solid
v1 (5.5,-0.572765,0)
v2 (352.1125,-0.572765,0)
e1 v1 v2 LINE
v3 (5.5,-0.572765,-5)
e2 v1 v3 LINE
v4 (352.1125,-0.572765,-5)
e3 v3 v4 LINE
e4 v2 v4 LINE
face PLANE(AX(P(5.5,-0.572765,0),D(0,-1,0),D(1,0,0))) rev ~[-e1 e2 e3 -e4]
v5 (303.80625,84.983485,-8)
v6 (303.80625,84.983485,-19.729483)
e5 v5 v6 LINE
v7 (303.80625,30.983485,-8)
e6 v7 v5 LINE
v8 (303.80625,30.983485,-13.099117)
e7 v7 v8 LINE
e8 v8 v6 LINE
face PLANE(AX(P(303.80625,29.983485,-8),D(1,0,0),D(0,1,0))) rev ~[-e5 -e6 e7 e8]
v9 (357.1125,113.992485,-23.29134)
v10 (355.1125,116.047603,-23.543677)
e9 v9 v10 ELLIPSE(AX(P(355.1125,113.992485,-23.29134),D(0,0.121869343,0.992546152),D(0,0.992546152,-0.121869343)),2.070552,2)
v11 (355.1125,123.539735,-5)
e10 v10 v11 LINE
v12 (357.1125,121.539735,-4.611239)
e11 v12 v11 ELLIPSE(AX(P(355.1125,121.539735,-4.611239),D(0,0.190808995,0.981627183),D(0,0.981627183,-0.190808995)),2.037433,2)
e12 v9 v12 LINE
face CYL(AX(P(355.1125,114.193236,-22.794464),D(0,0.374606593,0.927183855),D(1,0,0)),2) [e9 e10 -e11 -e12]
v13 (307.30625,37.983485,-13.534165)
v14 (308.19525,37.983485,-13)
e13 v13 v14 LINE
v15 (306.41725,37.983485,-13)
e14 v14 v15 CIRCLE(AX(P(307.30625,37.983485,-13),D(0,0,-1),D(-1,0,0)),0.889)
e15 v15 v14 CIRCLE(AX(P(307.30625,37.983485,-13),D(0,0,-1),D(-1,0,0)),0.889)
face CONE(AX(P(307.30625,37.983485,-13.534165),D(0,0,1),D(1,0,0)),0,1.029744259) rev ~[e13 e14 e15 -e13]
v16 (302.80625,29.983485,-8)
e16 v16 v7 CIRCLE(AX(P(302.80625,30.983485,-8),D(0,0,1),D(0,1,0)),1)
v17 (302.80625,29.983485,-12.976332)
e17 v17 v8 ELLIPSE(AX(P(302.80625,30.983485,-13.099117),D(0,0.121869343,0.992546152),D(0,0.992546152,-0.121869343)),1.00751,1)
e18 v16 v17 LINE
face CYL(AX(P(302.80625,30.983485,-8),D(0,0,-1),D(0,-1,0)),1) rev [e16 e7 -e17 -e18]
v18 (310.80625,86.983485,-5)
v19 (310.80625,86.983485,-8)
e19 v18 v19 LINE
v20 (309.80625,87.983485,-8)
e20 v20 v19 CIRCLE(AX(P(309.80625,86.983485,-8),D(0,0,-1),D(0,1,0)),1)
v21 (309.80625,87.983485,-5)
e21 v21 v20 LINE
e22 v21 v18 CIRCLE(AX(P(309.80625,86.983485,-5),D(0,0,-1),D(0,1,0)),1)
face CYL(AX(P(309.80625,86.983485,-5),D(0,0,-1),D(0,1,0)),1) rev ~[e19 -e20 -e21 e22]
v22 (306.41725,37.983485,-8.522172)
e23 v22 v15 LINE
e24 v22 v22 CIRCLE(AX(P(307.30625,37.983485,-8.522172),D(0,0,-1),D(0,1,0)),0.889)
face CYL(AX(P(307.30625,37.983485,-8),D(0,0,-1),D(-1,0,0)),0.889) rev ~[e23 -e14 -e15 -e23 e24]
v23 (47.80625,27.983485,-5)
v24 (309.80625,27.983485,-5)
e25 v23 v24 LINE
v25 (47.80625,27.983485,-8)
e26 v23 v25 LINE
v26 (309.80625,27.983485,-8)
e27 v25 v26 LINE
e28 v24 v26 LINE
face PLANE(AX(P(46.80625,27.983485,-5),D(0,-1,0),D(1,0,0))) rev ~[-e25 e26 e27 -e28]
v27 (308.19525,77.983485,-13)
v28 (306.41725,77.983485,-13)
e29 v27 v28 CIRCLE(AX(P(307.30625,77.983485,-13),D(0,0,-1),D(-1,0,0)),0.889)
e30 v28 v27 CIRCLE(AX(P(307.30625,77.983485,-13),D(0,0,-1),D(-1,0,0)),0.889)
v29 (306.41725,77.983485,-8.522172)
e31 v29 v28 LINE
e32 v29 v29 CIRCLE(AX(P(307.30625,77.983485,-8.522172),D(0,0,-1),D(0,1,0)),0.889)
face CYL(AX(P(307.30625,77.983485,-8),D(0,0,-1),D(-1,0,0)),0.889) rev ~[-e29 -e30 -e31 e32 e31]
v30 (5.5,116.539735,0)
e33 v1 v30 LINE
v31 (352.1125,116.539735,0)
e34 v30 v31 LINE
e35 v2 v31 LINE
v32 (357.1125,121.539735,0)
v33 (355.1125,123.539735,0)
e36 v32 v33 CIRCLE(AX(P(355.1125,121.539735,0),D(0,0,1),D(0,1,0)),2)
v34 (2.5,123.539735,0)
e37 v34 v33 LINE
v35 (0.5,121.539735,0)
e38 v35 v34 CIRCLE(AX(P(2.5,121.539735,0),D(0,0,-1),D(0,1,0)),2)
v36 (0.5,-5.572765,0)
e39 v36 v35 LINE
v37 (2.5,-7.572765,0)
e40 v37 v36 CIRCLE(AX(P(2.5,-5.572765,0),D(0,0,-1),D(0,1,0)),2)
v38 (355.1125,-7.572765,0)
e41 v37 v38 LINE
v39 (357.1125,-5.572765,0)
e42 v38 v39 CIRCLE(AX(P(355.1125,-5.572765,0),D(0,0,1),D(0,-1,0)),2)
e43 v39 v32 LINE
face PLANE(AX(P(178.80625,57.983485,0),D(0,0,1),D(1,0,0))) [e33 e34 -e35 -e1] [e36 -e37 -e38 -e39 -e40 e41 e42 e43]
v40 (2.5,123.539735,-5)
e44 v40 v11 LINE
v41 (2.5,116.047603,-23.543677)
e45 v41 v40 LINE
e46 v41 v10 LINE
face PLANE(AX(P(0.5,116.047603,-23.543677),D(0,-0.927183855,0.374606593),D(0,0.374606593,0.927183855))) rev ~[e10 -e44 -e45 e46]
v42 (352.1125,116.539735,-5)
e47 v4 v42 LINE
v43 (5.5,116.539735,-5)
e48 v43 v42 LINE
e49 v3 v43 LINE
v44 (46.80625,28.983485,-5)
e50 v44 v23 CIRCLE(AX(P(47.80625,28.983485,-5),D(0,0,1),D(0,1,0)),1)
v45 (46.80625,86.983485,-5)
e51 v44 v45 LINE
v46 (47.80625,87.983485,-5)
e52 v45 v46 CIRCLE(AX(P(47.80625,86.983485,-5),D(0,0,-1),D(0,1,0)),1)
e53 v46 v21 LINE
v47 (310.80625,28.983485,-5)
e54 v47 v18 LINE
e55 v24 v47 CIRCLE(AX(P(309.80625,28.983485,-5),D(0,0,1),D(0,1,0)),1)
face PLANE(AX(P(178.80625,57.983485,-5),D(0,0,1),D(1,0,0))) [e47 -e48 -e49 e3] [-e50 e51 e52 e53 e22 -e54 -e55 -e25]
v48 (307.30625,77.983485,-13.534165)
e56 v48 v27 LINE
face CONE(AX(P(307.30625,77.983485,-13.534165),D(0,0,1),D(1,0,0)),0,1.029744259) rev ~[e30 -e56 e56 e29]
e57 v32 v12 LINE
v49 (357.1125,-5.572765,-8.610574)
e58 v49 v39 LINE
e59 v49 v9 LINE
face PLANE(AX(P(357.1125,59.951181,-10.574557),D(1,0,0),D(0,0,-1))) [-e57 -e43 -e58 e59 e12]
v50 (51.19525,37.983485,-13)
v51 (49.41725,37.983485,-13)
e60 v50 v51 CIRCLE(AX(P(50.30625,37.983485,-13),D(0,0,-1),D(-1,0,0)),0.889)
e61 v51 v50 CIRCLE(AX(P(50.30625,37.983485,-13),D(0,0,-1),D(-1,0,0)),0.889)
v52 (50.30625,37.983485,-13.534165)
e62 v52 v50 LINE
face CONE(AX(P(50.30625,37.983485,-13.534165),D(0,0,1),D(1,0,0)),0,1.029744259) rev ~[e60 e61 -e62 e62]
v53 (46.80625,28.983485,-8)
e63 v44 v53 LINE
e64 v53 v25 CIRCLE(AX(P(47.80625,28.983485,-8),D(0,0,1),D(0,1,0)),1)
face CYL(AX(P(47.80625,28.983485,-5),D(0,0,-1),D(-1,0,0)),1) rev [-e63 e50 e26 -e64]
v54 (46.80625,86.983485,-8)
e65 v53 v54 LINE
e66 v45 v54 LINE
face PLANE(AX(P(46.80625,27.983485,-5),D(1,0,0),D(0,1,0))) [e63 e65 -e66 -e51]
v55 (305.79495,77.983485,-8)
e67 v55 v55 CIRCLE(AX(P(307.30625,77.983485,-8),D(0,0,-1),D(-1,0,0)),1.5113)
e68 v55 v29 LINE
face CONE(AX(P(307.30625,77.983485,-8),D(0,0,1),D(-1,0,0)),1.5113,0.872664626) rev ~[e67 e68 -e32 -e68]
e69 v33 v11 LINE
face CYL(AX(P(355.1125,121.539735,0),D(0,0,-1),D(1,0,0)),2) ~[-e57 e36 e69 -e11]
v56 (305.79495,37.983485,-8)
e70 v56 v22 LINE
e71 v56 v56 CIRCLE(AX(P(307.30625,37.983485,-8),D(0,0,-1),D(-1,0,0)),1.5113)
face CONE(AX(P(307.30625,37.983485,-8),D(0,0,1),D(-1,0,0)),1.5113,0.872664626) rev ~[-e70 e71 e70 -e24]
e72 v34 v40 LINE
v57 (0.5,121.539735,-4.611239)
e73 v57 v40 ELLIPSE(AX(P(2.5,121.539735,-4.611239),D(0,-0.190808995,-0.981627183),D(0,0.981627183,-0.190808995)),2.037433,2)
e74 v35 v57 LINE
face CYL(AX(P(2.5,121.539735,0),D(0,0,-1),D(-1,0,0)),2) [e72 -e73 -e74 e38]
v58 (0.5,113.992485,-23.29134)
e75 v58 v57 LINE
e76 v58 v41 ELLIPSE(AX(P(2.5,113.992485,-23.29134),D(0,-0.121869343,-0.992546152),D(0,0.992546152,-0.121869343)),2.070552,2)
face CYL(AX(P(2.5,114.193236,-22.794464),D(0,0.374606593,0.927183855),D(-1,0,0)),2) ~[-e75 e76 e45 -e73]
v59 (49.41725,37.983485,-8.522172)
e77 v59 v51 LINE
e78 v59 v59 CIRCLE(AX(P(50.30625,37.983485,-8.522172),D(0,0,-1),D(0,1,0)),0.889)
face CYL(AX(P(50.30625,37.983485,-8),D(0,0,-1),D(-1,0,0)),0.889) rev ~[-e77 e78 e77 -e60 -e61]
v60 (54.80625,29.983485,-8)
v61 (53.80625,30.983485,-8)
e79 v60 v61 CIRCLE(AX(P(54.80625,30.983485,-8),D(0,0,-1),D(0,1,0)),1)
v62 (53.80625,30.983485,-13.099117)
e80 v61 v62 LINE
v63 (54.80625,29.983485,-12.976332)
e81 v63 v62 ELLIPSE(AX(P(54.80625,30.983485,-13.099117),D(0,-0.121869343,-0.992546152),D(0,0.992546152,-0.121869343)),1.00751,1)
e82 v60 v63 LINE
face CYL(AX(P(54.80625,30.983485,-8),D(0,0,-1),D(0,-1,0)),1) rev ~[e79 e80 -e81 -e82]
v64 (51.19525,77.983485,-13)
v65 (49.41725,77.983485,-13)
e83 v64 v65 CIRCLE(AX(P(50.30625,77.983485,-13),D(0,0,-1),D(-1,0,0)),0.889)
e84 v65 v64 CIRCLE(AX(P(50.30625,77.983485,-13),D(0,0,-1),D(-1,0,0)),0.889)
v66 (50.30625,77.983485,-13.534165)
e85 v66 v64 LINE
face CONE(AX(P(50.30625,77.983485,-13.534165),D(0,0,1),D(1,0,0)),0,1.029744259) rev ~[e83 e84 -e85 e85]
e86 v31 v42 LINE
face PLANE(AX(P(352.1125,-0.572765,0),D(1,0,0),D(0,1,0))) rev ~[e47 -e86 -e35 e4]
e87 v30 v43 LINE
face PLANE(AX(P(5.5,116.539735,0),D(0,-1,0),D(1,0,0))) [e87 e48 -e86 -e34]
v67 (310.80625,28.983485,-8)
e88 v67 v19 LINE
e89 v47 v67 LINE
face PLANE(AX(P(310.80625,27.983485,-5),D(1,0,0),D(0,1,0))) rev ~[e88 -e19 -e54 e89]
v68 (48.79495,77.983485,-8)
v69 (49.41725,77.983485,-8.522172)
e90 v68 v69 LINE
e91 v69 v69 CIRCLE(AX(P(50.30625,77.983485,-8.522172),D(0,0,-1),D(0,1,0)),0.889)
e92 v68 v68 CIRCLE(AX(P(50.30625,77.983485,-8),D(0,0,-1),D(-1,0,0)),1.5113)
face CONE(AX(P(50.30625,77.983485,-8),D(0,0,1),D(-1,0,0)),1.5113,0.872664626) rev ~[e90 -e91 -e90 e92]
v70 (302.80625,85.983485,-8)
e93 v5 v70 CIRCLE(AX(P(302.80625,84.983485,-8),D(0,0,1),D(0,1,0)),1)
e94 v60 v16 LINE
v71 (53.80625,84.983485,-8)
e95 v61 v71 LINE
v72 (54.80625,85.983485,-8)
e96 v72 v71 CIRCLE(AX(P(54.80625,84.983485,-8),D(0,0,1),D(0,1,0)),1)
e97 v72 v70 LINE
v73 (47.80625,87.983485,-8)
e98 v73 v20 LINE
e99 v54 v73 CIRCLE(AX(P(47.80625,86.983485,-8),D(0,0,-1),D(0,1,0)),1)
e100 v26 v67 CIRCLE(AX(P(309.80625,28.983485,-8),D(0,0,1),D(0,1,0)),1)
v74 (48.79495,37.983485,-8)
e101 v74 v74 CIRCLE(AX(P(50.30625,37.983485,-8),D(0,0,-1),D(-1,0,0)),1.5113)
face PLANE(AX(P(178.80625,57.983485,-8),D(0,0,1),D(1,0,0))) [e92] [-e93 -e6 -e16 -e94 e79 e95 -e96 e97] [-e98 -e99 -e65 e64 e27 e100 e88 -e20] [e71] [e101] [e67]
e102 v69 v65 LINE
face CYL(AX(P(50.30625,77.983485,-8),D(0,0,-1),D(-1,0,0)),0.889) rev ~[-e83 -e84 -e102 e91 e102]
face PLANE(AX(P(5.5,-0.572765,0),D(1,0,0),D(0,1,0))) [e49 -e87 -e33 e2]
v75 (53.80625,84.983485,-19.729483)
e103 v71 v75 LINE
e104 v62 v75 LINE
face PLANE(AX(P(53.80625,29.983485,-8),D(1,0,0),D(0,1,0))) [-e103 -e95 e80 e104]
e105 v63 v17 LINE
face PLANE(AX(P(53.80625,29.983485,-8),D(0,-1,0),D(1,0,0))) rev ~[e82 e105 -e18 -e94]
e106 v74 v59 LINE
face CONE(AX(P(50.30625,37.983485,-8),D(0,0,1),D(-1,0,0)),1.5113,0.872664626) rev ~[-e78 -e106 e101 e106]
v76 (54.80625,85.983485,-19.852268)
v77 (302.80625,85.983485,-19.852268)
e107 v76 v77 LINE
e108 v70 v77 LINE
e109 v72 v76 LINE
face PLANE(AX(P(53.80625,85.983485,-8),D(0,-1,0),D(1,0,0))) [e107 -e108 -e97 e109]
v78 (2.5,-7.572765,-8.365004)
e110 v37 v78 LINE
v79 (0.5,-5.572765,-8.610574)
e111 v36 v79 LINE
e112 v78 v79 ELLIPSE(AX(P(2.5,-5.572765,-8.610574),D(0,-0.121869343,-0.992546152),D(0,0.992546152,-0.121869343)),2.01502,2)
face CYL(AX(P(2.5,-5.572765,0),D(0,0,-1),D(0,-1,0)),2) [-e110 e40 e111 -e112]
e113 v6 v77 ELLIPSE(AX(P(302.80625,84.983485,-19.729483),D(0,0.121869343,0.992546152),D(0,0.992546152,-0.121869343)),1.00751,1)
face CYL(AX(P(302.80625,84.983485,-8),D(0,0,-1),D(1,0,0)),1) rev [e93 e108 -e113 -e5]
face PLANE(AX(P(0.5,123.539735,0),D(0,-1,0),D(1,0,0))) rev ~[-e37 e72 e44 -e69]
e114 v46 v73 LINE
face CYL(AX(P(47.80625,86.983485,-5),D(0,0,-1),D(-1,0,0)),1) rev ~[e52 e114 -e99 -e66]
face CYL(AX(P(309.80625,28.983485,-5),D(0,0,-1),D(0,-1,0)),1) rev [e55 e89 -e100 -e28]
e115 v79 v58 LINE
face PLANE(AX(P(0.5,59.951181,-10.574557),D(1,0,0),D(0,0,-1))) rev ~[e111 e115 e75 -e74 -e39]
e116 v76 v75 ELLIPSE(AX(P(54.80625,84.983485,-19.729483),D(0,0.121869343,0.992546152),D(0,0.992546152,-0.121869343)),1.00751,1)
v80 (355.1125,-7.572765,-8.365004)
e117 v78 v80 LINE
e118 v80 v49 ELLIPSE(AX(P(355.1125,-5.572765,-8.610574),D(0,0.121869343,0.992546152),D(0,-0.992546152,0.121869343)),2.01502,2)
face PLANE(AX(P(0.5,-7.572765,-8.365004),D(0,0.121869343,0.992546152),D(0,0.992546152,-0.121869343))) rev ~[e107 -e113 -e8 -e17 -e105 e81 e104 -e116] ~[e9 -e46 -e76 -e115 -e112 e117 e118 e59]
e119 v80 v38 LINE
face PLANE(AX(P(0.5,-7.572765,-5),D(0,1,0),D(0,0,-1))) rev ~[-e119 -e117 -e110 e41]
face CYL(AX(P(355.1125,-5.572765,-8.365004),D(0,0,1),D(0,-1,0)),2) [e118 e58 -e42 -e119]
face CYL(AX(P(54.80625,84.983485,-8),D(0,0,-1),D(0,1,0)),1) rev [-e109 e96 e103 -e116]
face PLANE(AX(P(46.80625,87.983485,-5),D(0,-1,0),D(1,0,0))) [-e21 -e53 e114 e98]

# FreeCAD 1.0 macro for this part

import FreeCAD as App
import Part
import Sketcher

V = App.Vector
Q = App.Units.Quantity


def edges_at(feature, points):
    """Names of the edges that pass closest to the given points."""
    edges = feature.Shape.Edges
    near = lambda p: min(range(len(edges)), key=lambda i: edges[i].distToShape(Part.Vertex(*p))[0])
    return sorted({f"Edge{near(p) + 1}" for p in points})


def add_polygon(sketch, points):
    """Adds a closed chain of lines whose ends are joined by coincident constraints."""
    first, n = sketch.GeometryCount, len(points)
    for a, b in zip(points, points[1:] + points[:1]):
        sketch.addGeometry(Part.LineSegment(App.Vector(*a, 0), App.Vector(*b, 0)), False)
    for i in range(n):
        sketch.addConstraint(Sketcher.Constraint("Coincident", first + i, 2, first + (i + 1) % n, 1))

doc = App.newDocument("Part")
body = doc.addObject("PartDesign::Body", "Body")

# Sketch on XY plane
sketch1 = body.newObject("Sketcher::SketchObject", "Sketch")
sketch1.AttachmentSupport = (doc.getObject("XY_Plane"), [""])
sketch1.MapMode = "FlatFace"
add_polygon(sketch1, [(0, 124), (0, -8), (357, -8), (357, 124)])  # lines 0-3
sketch1.addConstraint(Sketcher.Constraint("Vertical", 0))
sketch1.addConstraint(Sketcher.Constraint("Horizontal", 1))
sketch1.addConstraint(Sketcher.Constraint("Vertical", 2))
sketch1.addConstraint(Sketcher.Constraint("Horizontal", 3))
sketch1.addConstraint(Sketcher.Constraint("DistanceX", -1, 1, 0, 2, 0.5))
sketch1.addConstraint(Sketcher.Constraint("DistanceX", 1, 1, 1, 2, 356.6125))
sketch1.addConstraint(Sketcher.Constraint("DistanceY", 0, 2, 0, 1, 131.1125))
sketch1.addConstraint(Sketcher.Constraint("DistanceY", 0, 2, -1, 1, 7.572765))
pad1 = body.newObject("PartDesign::Pad", "Pad")
pad1.Profile = sketch1
pad1.Length = 5
pad1.Reversed = True

# Sketch on YZ plane
sketch2 = body.newObject("Sketcher::SketchObject", "Sketch001")
sketch2.AttachmentSupport = (doc.getObject("YZ_Plane"), [""])
sketch2.MapMode = "FlatFace"
sketch2.AttachmentOffset = App.Placement(V(0, 0, 0.5), App.Rotation())
add_polygon(sketch2, [(-7.6, -8.4), (-7.6, -5), (123.5, -5), (116, -23.5)])  # lines 0-3
sketch2.addConstraint(Sketcher.Constraint("Vertical", 0))
sketch2.addConstraint(Sketcher.Constraint("Horizontal", 1))
sketch2.addConstraint(Sketcher.Constraint("Angle", 2, Q("-112 deg")))
sketch2.addConstraint(Sketcher.Constraint("Angle", 3, Q("173 deg")))
sketch2.addConstraint(Sketcher.Constraint("Distance", 2, 20.0))
sketch2.addConstraint(Sketcher.Constraint("DistanceY", 0, 2, -1, 1, 5.0))
sketch2.addConstraint(Sketcher.Constraint("DistanceX", 1, 1, 1, 2, 131.1125))
sketch2.addConstraint(Sketcher.Constraint("DistanceX", 0, 2, -1, 1, 7.572765))
pad2 = body.newObject("PartDesign::Pad", "Pad001")
pad2.Profile = sketch2
pad2.Length = 356.6125

# Sketch on XY plane
sketch3 = body.newObject("Sketcher::SketchObject", "Sketch002")
sketch3.AttachmentSupport = (doc.getObject("XY_Plane"), [""])
sketch3.MapMode = "FlatFace"
add_polygon(sketch3, [(6, 117), (6, -1), (352, -1), (352, 117)])  # lines 0-3
sketch3.addConstraint(Sketcher.Constraint("Vertical", 0))
sketch3.addConstraint(Sketcher.Constraint("Horizontal", 1))
sketch3.addConstraint(Sketcher.Constraint("Vertical", 2))
sketch3.addConstraint(Sketcher.Constraint("Horizontal", 3))
sketch3.addConstraint(Sketcher.Constraint("DistanceX", -1, 1, 0, 2, 5.5))
sketch3.addConstraint(Sketcher.Constraint("DistanceX", 1, 1, 1, 2, 346.6125))
sketch3.addConstraint(Sketcher.Constraint("DistanceY", 0, 2, 0, 1, 117.1125))
sketch3.addConstraint(Sketcher.Constraint("DistanceY", 0, 2, -1, 1, 0.572765))
pocket1 = body.newObject("PartDesign::Pocket", "Pocket")
pocket1.Profile = sketch3
pocket1.Length = 5

# Sketch on XY plane
sketch4 = body.newObject("Sketcher::SketchObject", "Sketch003")
sketch4.AttachmentSupport = (doc.getObject("XY_Plane"), [""])
sketch4.MapMode = "FlatFace"
sketch4.AttachmentOffset = App.Placement(V(0, 0, -5), App.Rotation())
add_polygon(sketch4, [(47, 88), (47, 28), (311, 28), (311, 88)])  # lines 0-3
sketch4.addConstraint(Sketcher.Constraint("Vertical", 0))
sketch4.addConstraint(Sketcher.Constraint("Horizontal", 1))
sketch4.addConstraint(Sketcher.Constraint("Vertical", 2))
sketch4.addConstraint(Sketcher.Constraint("Horizontal", 3))
sketch4.addConstraint(Sketcher.Constraint("DistanceX", 1, 1, 1, 2, 264.0))
sketch4.addConstraint(Sketcher.Constraint("DistanceY", 0, 2, 0, 1, 60.0))
sketch4.addConstraint(Sketcher.Constraint("DistanceX", -1, 1, 0, 2, 46.80625))
sketch4.addConstraint(Sketcher.Constraint("DistanceY", -1, 1, 0, 2, 27.983485))
pocket2 = body.newObject("PartDesign::Pocket", "Pocket001")
pocket2.Profile = sketch4
pocket2.Length = 3

# Sketch on XY plane
sketch5 = body.newObject("Sketcher::SketchObject", "Sketch004")
sketch5.AttachmentSupport = (doc.getObject("XY_Plane"), [""])
sketch5.MapMode = "FlatFace"
sketch5.AttachmentOffset = App.Placement(V(0, 0, -8), App.Rotation())
add_polygon(sketch5, [(54, 86), (54, 30), (304, 30), (304, 86)])  # lines 0-3
sketch5.addConstraint(Sketcher.Constraint("Vertical", 0))
sketch5.addConstraint(Sketcher.Constraint("Horizontal", 1))
sketch5.addConstraint(Sketcher.Constraint("Vertical", 2))
sketch5.addConstraint(Sketcher.Constraint("Horizontal", 3))
sketch5.addConstraint(Sketcher.Constraint("DistanceX", 1, 1, 1, 2, 250.0))
sketch5.addConstraint(Sketcher.Constraint("DistanceY", 0, 2, 0, 1, 56.0))
sketch5.addConstraint(Sketcher.Constraint("DistanceX", -1, 1, 0, 2, 53.80625))
sketch5.addConstraint(Sketcher.Constraint("DistanceY", -1, 1, 0, 2, 29.983485))
pocket3 = body.newObject("PartDesign::Pocket", "Pocket002")
pocket3.Profile = sketch5
pocket3.Length = 43
doc.recompute()

fillet = body.newObject("PartDesign::Fillet", "Fillet")
fillet.Base = (pocket3, edges_at(pocket3, [
    (46.806, 27.983, -6.5),
    (46.806, 87.983, -6.5),
    (310.806, 87.983, -6.5),
    (310.806, 27.983, -6.5),
    (53.806, 29.983, -10.488),
    (53.806, 85.983, -13.926),
    (303.806, 85.983, -13.926),
    (303.806, 29.983, -10.488),
]))
fillet.Radius = 1

# Sketch on XY plane
sketch6 = body.newObject("Sketcher::SketchObject", "Sketch005")
sketch6.AttachmentSupport = (doc.getObject("XY_Plane"), [""])
sketch6.MapMode = "FlatFace"
sketch6.AttachmentOffset = App.Placement(V(0, 0, -8), App.Rotation())
sketch6.addGeometry(Part.Circle(V(50.3, 78, 0), V(0, 0, 1), 0.9), False)
sketch6.addGeometry(Part.Circle(V(50.3, 38, 0), V(0, 0, 1), 0.9), False)
sketch6.addConstraint(Sketcher.Constraint("Equal", 0, 1))
sketch6.addConstraint(Sketcher.Constraint("Vertical", 0, 3, 1, 3))
sketch6.addConstraint(Sketcher.Constraint("Diameter", 0, 1.778))
sketch6.addConstraint(Sketcher.Constraint("DistanceY", 1, 3, 0, 3, 40.0))
sketch6.addConstraint(Sketcher.Constraint("DistanceX", -1, 1, 0, 3, 50.30625))
sketch6.addConstraint(Sketcher.Constraint("DistanceY", -1, 1, 0, 3, 77.983485))
doc.recompute()
hole = body.newObject("PartDesign::Hole", "Hole")
hole.Profile = sketch6
hole.ThreadType = "None"
hole.Diameter = 1.778
hole.DepthType = "Dimension"
hole.Depth = 5
hole.DrillPoint = "Angled"
hole.DrillPointAngle = 118
hole.HoleCutType = "Countersink"
hole.HoleCutDiameter = 3.0226
hole.HoleCutCountersinkAngle = 100

# Sketch on XY plane
sketch7 = body.newObject("Sketcher::SketchObject", "Sketch006")
sketch7.AttachmentSupport = (doc.getObject("XY_Plane"), [""])
sketch7.MapMode = "FlatFace"
sketch7.AttachmentOffset = App.Placement(V(0, 0, -8), App.Rotation())
sketch7.addGeometry(Part.Circle(V(307.3, 78, 0), V(0, 0, 1), 0.9), False)
sketch7.addGeometry(Part.Circle(V(307.3, 38, 0), V(0, 0, 1), 0.9), False)
sketch7.addConstraint(Sketcher.Constraint("Equal", 0, 1))
sketch7.addConstraint(Sketcher.Constraint("Vertical", 0, 3, 1, 3))
sketch7.addConstraint(Sketcher.Constraint("Diameter", 0, 1.778))
sketch7.addConstraint(Sketcher.Constraint("DistanceY", 1, 3, 0, 3, 40.0))
sketch7.addConstraint(Sketcher.Constraint("DistanceX", -1, 1, 0, 3, 307.30625))
sketch7.addConstraint(Sketcher.Constraint("DistanceY", -1, 1, 0, 3, 77.983485))
doc.recompute()
hole2 = body.newObject("PartDesign::Hole", "Hole001")
hole2.Profile = sketch7
hole2.ThreadType = "None"
hole2.Diameter = 1.778
hole2.DepthType = "Dimension"
hole2.Depth = 5
hole2.DrillPoint = "Angled"
hole2.DrillPointAngle = 118
hole2.HoleCutType = "Countersink"
hole2.HoleCutDiameter = 3.0226
hole2.HoleCutCountersinkAngle = 100
doc.recompute()

fillet2 = body.newObject("PartDesign::Fillet", "Fillet001")
fillet2.Base = (hole2, edges_at(hole2, [
    (0.5, 119.794, -14.272),
    (357.113, 119.794, -14.272),
    (357.113, -7.573, -4.183),
    (0.5, -7.573, -4.183),
    (0.5, 123.54, -2.5),
    (357.113, 123.54, -2.5),
]))
fillet2.Radius = 2

doc.recompute()
